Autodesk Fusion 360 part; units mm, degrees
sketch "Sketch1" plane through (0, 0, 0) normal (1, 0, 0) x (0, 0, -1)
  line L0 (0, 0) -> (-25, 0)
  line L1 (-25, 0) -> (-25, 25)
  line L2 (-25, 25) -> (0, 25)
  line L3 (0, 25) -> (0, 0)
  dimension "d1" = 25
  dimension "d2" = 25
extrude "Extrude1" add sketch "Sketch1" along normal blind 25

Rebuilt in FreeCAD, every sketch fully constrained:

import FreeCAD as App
import Part
import Sketcher
from FreeCAD import Vector


def add_polygon(sketch, points):
    """Adds a closed chain of lines whose ends are joined by coincident constraints."""
    first, n = sketch.GeometryCount, len(points)
    for a, b in zip(points, points[1:] + points[:1]):
        sketch.addGeometry(Part.LineSegment(App.Vector(*a, 0), App.Vector(*b, 0)), False)
    for i in range(n):
        sketch.addConstraint(Sketcher.Constraint("Coincident", first + i, 2, first + (i + 1) % n, 1))

doc = App.newDocument("Part")
body = doc.addObject("PartDesign::Body", "Body")

# Sketch on YZ plane
sketch1 = body.newObject("Sketcher::SketchObject", "Sketch")
sketch1.AttachmentSupport = (doc.getObject("YZ_Plane"), [""])
sketch1.MapMode = "FlatFace"
add_polygon(sketch1, [(0, 25), (0, 0), (25, 0), (25, 25)])  # lines 0-3
sketch1.addConstraint(Sketcher.Constraint("Vertical", 0))
sketch1.addConstraint(Sketcher.Constraint("Horizontal", 1))
sketch1.addConstraint(Sketcher.Constraint("Vertical", 2))
sketch1.addConstraint(Sketcher.Constraint("Horizontal", 3))
sketch1.addConstraint(Sketcher.Constraint("Coincident", 0, 2, -1, 1))
sketch1.addConstraint(Sketcher.Constraint("Equal", 3, 0))
sketch1.addConstraint(Sketcher.Constraint("DistanceX", 1, 1, 1, 2, 25.0))
pad1 = body.newObject("PartDesign::Pad", "Pad")
pad1.Profile = sketch1
pad1.Length = 25

doc.recompute()
